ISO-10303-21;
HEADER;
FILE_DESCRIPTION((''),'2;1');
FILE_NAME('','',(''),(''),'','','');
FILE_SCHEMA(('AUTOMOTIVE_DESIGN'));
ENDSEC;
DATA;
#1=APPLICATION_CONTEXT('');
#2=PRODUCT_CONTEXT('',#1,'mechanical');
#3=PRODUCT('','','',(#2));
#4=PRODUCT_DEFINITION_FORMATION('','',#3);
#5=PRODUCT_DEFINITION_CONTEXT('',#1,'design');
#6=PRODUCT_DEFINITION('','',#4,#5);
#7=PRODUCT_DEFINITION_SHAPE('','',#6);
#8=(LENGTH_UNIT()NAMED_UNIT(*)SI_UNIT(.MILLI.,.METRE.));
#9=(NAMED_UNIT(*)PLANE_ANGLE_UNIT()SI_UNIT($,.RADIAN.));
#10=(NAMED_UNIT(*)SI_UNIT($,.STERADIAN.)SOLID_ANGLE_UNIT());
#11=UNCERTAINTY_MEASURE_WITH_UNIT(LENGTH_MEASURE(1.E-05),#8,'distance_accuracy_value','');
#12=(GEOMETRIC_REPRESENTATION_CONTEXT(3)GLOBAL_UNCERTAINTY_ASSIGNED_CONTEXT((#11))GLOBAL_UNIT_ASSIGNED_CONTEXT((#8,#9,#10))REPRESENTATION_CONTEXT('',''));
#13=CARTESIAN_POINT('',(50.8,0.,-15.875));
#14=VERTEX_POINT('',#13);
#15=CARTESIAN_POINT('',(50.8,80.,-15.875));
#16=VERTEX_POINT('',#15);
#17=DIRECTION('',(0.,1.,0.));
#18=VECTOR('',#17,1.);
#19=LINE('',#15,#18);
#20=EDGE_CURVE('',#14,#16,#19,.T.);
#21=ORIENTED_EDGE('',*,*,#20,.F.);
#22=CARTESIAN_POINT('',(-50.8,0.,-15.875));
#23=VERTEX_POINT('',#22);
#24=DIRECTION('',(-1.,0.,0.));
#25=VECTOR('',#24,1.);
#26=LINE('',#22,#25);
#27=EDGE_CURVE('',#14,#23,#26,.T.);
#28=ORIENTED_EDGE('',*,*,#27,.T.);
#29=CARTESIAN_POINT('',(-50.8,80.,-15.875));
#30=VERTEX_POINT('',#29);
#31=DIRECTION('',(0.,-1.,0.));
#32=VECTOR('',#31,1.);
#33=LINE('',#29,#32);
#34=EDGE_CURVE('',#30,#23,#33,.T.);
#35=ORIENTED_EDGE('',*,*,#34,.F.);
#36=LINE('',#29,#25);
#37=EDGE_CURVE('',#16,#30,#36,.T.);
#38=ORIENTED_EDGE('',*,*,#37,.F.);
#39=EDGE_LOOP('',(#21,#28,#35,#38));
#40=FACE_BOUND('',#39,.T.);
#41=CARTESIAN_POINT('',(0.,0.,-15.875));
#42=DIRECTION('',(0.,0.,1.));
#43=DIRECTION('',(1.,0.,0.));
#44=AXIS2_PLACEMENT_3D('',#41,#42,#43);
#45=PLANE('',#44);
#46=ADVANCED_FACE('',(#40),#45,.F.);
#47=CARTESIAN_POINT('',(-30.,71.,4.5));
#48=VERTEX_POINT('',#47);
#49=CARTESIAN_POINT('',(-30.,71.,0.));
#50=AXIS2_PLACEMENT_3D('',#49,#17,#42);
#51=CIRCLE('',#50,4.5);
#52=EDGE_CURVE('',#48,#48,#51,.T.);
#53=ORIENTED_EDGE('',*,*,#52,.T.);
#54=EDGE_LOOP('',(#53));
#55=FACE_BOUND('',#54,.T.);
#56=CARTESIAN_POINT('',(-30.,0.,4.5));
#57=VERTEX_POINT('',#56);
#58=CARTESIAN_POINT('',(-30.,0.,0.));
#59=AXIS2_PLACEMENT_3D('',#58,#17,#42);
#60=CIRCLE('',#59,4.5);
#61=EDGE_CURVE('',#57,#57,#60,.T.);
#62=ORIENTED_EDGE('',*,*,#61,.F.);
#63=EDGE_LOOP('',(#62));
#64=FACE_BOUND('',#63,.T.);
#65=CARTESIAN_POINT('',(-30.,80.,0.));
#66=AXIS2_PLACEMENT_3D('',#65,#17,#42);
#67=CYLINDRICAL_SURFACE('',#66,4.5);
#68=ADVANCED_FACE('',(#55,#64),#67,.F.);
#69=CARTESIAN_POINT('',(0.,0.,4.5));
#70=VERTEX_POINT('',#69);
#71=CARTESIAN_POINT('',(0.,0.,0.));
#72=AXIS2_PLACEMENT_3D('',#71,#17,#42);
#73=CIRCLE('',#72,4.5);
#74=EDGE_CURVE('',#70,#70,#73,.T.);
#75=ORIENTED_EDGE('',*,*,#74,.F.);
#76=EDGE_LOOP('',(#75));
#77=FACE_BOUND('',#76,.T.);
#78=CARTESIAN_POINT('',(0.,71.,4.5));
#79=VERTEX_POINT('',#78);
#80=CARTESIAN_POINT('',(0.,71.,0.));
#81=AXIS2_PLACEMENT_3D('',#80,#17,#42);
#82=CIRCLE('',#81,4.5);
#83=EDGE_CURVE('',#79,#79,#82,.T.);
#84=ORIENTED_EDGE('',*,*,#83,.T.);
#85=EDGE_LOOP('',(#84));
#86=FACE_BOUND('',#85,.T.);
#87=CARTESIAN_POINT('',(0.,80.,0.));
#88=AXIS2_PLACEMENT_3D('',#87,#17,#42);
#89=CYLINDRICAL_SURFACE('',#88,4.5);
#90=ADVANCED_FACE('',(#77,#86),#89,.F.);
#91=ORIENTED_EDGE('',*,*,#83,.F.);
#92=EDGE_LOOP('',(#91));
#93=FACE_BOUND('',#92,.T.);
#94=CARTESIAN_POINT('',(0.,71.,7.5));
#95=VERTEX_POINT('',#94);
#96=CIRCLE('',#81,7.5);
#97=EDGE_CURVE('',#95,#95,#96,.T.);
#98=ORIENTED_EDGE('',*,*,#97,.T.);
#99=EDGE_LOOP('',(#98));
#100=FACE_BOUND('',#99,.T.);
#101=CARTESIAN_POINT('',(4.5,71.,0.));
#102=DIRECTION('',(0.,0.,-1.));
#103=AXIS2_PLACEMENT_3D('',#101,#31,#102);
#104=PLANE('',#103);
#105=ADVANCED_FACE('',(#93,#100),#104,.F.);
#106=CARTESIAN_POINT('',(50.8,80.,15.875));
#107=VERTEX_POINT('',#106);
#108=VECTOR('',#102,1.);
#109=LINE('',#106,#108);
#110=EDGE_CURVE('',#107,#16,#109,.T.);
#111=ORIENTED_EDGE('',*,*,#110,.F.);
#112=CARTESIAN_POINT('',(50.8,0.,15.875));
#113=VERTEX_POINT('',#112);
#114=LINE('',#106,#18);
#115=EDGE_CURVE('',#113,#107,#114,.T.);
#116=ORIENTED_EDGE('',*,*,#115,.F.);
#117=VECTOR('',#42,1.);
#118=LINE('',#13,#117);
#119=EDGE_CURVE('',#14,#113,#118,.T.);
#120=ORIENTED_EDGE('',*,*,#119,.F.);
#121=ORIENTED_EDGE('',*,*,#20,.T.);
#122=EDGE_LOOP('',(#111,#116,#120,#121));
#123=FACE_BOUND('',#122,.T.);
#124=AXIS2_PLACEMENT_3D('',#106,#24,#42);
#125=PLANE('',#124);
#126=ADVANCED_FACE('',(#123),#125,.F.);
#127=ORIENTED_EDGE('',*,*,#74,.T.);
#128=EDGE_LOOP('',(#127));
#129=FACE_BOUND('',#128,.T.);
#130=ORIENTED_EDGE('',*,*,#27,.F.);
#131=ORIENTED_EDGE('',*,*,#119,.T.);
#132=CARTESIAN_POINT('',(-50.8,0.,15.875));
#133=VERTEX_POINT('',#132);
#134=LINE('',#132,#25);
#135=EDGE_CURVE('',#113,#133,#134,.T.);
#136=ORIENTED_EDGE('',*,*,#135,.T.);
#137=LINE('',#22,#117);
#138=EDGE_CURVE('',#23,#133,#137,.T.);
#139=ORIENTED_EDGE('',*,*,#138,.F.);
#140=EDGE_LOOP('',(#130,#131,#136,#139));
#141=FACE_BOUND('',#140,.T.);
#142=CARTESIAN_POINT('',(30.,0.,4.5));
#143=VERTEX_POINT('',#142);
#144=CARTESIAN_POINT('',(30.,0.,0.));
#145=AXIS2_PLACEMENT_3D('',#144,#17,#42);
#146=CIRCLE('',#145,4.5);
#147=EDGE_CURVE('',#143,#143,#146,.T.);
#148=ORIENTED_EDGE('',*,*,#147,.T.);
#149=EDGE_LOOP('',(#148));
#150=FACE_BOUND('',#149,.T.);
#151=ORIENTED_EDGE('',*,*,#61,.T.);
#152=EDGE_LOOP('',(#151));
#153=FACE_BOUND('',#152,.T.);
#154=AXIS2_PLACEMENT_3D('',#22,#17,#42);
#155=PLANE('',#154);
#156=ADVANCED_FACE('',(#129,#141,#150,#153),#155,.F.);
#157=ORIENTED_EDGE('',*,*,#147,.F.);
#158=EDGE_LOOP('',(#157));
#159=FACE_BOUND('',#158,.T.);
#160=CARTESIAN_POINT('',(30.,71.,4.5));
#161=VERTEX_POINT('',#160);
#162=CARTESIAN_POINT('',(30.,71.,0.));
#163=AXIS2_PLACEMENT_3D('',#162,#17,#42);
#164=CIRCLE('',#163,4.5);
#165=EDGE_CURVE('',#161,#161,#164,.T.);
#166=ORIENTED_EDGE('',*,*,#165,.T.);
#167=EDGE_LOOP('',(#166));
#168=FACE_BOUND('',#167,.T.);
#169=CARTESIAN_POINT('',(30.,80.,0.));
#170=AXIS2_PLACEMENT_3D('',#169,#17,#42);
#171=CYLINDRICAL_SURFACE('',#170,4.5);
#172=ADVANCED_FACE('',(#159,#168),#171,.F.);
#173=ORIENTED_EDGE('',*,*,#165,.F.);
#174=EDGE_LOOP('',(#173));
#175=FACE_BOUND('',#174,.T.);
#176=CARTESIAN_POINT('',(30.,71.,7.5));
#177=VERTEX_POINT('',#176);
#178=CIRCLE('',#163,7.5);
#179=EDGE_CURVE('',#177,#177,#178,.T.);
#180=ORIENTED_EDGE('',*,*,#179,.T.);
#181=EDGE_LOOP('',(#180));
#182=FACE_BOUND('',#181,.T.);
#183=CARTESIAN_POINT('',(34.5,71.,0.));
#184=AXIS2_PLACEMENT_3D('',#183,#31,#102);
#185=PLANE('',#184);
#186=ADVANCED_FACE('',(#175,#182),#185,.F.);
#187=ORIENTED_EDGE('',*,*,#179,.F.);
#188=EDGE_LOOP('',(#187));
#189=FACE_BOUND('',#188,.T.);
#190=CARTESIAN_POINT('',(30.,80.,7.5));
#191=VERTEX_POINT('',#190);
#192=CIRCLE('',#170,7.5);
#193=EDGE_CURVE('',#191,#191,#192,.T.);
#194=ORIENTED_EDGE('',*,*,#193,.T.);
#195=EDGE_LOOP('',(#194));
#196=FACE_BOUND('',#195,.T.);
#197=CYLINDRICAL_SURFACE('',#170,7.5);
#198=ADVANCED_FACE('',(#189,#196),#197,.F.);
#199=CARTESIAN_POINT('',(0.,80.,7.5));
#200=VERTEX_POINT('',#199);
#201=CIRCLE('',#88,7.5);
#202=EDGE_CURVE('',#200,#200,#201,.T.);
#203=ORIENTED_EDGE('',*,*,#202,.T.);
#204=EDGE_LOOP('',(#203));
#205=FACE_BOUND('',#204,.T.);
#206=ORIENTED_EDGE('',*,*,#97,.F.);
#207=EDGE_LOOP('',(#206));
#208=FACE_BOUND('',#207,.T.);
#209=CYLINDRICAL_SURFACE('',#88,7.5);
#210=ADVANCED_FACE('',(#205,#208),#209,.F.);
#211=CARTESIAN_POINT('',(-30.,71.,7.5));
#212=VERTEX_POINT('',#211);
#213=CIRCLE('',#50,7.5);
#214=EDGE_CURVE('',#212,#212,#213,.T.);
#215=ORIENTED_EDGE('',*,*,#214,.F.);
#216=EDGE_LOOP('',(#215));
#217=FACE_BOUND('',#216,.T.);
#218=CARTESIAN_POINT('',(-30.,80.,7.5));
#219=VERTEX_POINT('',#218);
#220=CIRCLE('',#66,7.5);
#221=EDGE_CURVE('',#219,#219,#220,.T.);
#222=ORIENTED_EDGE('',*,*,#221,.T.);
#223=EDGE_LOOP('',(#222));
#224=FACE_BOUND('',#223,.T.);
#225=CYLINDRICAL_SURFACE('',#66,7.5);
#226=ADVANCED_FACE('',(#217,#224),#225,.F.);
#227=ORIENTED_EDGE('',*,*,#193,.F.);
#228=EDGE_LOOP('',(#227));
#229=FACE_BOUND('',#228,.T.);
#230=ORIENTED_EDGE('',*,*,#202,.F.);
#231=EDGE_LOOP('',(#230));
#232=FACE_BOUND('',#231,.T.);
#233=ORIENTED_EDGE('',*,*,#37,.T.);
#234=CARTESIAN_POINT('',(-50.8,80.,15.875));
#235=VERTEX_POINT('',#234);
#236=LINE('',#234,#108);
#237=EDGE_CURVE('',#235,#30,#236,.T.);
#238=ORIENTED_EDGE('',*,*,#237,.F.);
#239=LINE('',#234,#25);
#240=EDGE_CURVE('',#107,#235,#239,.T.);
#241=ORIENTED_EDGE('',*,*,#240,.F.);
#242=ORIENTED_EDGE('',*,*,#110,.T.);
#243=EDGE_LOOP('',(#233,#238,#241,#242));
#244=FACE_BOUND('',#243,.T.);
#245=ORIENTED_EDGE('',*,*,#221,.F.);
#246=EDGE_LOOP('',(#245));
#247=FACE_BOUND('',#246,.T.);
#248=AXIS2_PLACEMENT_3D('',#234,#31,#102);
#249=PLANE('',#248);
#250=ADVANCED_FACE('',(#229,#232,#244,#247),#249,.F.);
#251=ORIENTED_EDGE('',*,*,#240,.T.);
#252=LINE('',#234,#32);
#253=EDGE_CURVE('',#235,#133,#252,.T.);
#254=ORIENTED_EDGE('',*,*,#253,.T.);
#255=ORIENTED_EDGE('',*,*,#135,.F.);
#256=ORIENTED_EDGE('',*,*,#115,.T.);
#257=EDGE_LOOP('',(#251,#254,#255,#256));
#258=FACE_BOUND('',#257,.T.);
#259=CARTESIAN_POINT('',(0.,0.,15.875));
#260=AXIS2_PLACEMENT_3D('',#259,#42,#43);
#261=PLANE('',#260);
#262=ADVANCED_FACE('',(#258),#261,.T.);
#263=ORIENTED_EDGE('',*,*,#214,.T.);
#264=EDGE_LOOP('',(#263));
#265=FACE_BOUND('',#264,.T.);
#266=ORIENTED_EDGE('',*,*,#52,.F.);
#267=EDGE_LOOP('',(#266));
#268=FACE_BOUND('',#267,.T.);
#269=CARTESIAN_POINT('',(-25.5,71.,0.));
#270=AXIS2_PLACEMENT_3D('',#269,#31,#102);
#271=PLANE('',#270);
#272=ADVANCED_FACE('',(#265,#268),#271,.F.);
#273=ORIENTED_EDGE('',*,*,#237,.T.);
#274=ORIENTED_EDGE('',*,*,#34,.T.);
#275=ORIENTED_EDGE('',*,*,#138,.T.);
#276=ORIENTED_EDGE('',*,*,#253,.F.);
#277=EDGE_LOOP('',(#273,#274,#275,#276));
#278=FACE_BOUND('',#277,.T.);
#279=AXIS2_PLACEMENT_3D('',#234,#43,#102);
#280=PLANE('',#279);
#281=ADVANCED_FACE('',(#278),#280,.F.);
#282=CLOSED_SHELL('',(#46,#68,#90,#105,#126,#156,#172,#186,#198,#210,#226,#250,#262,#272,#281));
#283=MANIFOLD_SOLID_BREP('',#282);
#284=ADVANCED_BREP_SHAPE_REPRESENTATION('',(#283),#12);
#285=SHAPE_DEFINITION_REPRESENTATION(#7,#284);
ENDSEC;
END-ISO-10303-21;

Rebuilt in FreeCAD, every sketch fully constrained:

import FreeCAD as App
import Part
import Sketcher

V = App.Vector
Q = App.Units.Quantity

doc = App.newDocument("Part")
params = doc.addObject("Spreadsheet::Sheet", "Params")
for row, (alias, value) in enumerate([
    ("sketch1_width", "4 in"),
    ("sketch1_height", "3.25 in"),
    ("pad1_length", "1.25 in"),
    ("sketch2_width", "4 in"),
    ("hole_diameter", "9 mm"),
    ("hole_cbore_diameter", "15 mm"),
    ("hole_cbore_depth", "9 mm"),
], start=1):
    params.set(f"A{row}", alias)
    params.set(f"B{row}", "=" + value)
    params.setAlias(f"B{row}", alias)

body = doc.addObject("PartDesign::Body", "Body")

# Sketch on XY plane
sketch1 = body.newObject("Sketcher::SketchObject", "Sketch")
sketch1.AttachmentSupport = (doc.getObject("XY_Plane"), [""])
sketch1.MapMode = "FlatFace"
sketch1.addGeometry([
    Part.LineSegment(V(-51, 80, 0), V(-51, -3, 0)),
    Part.LineSegment(V(-51, -3, 0), V(51, -3, 0)),
    Part.LineSegment(V(51, -3, 0), V(51, 80, 0)),
    Part.LineSegment(V(51, 80, 0), V(-51, 80, 0)),
], False)
sketch1.addConstraint([
    Sketcher.Constraint("Coincident", 0, 2, 1, 1),
    Sketcher.Constraint("Coincident", 1, 2, 2, 1),
    Sketcher.Constraint("Coincident", 2, 2, 3, 1),
    Sketcher.Constraint("Coincident", 3, 2, 0, 1),
    Sketcher.Constraint("Vertical", 0),
    Sketcher.Constraint("Horizontal", 1),
    Sketcher.Constraint("Vertical", 2),
    Sketcher.Constraint("Horizontal", 3),
    Sketcher.Constraint("DistanceX", 1, 1, 1, 2, Q("4 in")),
    Sketcher.Constraint("DistanceX", 0, 2, -1, 1, Q("2 in")),
    Sketcher.Constraint("DistanceY", 0, 2, 0, 1, Q("3.25 in")),
    Sketcher.Constraint("DistanceY", 0, 2, -1, 1, Q("2.55 mm")),
])
sketch1.setExpression("Constraints[8]", "Params.sketch1_width")
sketch1.setExpression("Constraints[10]", "Params.sketch1_height")
pad1 = body.newObject("PartDesign::Pad", "Pad")
pad1.Profile = sketch1
pad1.setExpression("Length", "Params.pad1_length")
pad1.Midplane = True

# Sketch on XY plane
sketch2 = body.newObject("Sketcher::SketchObject", "Sketch001")
sketch2.AttachmentSupport = (doc.getObject("XY_Plane"), [""])
sketch2.MapMode = "FlatFace"
sketch2.AttachmentOffset = App.Placement(V(0, 0, 0.625 * 25.4), App.Rotation())
sketch2.addGeometry([
    Part.LineSegment(V(-50.8, 0, 0), V(-50.8, -2.5, 0)),
    Part.LineSegment(V(-50.8, -2.5, 0), V(50.8, -2.5, 0)),
    Part.LineSegment(V(50.8, -2.5, 0), V(50.8, 0, 0)),
    Part.LineSegment(V(50.8, 0, 0), V(-50.8, 0, 0)),
], False)
sketch2.addConstraint([
    Sketcher.Constraint("Coincident", 0, 2, 1, 1),
    Sketcher.Constraint("Coincident", 1, 2, 2, 1),
    Sketcher.Constraint("Coincident", 2, 2, 3, 1),
    Sketcher.Constraint("Coincident", 3, 2, 0, 1),
    Sketcher.Constraint("Vertical", 0),
    Sketcher.Constraint("Horizontal", 1),
    Sketcher.Constraint("Vertical", 2),
    Sketcher.Constraint("Horizontal", 3),
    Sketcher.Constraint("Symmetric", 2, 2, 3, 2, -1, 1),
    Sketcher.Constraint("DistanceX", 1, 1, 1, 2, Q("4 in")),
    Sketcher.Constraint("DistanceY", 0, 2, 0, 1, Q("2.55 mm")),
])
sketch2.setExpression("Constraints[9]", "Params.sketch2_width")
pocket1 = body.newObject("PartDesign::Pocket", "Pocket")
pocket1.Profile = sketch2
pocket1.Type = "ThroughAll"

# Sketch on XZ plane
sketch3 = body.newObject("Sketcher::SketchObject", "Sketch002")
sketch3.AttachmentSupport = (doc.getObject("XZ_Plane"), [""])
sketch3.MapMode = "FlatFace"
sketch3.AttachmentOffset = App.Placement(V(0, 0, -80), App.Rotation())
sketch3.addGeometry([
    Part.Circle(V(30, 0, 0), V(0, 0, 1), 4.5),
    Part.Circle(V(0, 0, 0), V(0, 0, 1), 4.5),
    Part.Circle(V(-30, 0, 0), V(0, 0, 1), 4.5),
], False)
sketch3.addConstraint([
    Sketcher.Constraint("Coincident", 1, 3, -1, 1),
    Sketcher.Constraint("Equal", 0, 1),
    Sketcher.Constraint("Equal", 1, 2),
    Sketcher.Constraint("Symmetric", 0, 3, 2, 3, -1, 1),
    Sketcher.Constraint("PointOnObject", 0, 3, -1),
    Sketcher.Constraint("Diameter", 0, Q("9 mm")),
    Sketcher.Constraint("DistanceX", -1, 1, 0, 3, Q("30 mm")),
])
doc.recompute()
hole = body.newObject("PartDesign::Hole", "Hole")
hole.Profile = sketch3
hole.ThreadType = "None"
hole.setExpression("Diameter", "Params.hole_diameter")
hole.DepthType = "ThroughAll"
hole.HoleCutType = "Counterbore"
hole.setExpression("HoleCutDiameter", "Params.hole_cbore_diameter")
hole.setExpression("HoleCutDepth", "Params.hole_cbore_depth")
hole.Reversed = True

doc.recompute()
